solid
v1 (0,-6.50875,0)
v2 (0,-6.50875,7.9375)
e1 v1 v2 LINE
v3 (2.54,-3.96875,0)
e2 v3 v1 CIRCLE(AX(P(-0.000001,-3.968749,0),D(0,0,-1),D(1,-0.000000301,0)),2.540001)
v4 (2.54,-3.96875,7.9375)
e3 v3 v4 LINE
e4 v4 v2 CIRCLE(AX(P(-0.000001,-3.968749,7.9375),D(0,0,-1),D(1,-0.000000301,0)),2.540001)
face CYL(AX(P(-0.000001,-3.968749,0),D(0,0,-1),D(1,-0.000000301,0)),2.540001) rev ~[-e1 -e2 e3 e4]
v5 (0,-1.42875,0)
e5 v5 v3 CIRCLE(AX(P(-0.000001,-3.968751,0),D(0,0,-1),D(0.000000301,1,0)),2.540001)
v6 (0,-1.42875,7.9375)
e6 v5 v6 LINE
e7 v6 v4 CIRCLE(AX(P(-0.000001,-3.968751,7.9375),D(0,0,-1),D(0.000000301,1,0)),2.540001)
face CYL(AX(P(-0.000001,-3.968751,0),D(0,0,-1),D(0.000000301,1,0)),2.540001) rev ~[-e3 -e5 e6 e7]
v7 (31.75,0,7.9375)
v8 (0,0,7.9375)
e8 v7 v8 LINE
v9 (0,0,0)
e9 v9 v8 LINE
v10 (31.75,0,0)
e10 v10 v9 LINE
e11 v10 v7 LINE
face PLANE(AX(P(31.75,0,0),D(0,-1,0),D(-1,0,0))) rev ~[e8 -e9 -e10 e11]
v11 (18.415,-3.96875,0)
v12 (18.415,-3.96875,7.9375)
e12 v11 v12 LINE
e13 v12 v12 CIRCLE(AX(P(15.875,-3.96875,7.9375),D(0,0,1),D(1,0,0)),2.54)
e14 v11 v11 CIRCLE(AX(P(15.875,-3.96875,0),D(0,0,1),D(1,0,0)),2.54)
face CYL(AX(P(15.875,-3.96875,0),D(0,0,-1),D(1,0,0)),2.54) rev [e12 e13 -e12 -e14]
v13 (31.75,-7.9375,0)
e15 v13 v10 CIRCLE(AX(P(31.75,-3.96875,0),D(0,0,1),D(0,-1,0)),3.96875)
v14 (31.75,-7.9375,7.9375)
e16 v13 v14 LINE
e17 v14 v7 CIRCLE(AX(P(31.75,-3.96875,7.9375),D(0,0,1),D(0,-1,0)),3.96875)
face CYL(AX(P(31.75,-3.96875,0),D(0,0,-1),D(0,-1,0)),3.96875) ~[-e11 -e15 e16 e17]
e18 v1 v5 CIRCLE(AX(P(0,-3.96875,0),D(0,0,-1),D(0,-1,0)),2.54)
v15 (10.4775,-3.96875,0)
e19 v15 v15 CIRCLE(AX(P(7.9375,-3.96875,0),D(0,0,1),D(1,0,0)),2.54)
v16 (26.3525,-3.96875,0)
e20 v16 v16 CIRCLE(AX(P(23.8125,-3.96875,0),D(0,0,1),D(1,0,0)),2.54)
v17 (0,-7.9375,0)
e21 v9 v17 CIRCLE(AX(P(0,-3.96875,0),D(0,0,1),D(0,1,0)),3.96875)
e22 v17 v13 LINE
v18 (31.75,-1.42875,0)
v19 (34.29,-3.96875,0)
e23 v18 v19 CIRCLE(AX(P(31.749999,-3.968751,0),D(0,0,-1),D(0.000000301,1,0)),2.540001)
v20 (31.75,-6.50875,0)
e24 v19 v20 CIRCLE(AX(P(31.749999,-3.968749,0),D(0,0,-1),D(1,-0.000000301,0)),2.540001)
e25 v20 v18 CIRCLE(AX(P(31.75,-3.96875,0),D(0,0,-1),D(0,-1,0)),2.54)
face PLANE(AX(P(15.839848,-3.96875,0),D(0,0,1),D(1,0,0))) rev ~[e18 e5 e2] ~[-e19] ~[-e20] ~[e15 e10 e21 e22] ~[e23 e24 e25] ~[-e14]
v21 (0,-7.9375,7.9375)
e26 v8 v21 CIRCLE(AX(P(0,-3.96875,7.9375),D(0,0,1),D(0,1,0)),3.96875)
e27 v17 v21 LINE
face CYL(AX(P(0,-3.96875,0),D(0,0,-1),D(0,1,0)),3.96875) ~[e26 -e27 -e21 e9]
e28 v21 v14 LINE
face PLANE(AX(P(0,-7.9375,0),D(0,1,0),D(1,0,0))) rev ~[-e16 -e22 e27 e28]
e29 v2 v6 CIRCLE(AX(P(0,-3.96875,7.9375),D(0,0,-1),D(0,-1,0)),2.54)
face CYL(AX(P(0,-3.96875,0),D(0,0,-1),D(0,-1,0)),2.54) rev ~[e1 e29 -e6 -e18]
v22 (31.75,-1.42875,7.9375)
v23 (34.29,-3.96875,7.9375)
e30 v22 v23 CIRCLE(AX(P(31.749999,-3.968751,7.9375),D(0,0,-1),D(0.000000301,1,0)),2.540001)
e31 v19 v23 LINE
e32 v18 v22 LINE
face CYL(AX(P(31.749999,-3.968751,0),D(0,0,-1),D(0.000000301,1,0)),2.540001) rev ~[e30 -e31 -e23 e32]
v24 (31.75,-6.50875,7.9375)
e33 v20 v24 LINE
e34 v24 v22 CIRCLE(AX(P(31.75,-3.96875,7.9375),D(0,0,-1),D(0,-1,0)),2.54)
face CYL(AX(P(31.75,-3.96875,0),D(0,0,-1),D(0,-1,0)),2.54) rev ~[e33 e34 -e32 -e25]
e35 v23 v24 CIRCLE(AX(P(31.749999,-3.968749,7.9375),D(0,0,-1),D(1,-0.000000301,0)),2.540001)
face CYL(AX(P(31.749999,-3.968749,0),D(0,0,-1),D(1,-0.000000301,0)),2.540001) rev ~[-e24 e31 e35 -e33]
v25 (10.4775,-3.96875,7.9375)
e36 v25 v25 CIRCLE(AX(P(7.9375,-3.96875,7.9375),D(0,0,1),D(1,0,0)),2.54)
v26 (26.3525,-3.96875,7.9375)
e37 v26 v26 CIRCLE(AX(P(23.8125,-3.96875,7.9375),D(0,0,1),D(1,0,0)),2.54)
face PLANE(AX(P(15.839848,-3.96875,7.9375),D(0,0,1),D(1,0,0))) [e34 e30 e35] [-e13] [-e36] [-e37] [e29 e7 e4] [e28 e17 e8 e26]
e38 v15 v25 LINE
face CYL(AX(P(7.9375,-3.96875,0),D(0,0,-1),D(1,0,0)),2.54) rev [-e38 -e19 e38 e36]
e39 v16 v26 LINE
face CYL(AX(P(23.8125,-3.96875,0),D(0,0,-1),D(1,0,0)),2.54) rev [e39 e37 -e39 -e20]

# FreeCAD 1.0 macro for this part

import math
import FreeCAD as App
import Part
import Sketcher
from FreeCAD import Vector
Q = App.Units.Quantity

doc = App.newDocument("Part")
body = doc.addObject("PartDesign::Body", "Body")

sketch1 = body.newObject("Sketcher::SketchObject", "Sketch")
sketch1.AttachmentSupport = (doc.getObject("XY_Plane"), [""])
sketch1.MapMode = "FlatFace"
sketch1.addGeometry([
    Part.LineSegment(Vector(31.8, 0, 0), Vector(0, 0, 0)),
    Part.ArcOfCircle(Part.Circle(Vector(0, -4, 0), Vector(0, 0, 1), 4), math.radians(90), math.radians(270)),
    Part.LineSegment(Vector(0, -7.9, 0), Vector(31.8, -7.9, 0)),
    Part.ArcOfCircle(Part.Circle(Vector(31.8, -4, 0), Vector(0, 0, 1), 4), math.radians(-90), math.radians(90)),
    Part.ArcOfCircle(Part.Circle(Vector(31.8, -4, 0), Vector(0, 0, 1), 2.5), math.radians(90), math.radians(270)),
    Part.ArcOfCircle(Part.Circle(Vector(31.7, -4, 0), Vector(0, 0, 1), 2.5), math.radians(0), math.radians(90)),
    Part.ArcOfCircle(Part.Circle(Vector(31.7, -4, 0), Vector(0, 0, 1), 2.5), math.radians(-90), math.radians(0)),
    Part.ArcOfCircle(Part.Circle(Vector(0, -4, 0), Vector(0, 0, 1), 2.5), math.radians(0), math.radians(90)),
    Part.ArcOfCircle(Part.Circle(Vector(0, -4, 0), Vector(0, 0, 1), 2.5), math.radians(-90), math.radians(0)),
    Part.ArcOfCircle(Part.Circle(Vector(0, -4, 0), Vector(0, 0, 1), 2.5), math.radians(90), math.radians(270)),
    Part.Circle(Vector(7.9, -4, 0), Vector(0, 0, 1), 2.5),
    Part.Circle(Vector(15.9, -4, 0), Vector(0, 0, 1), 2.5),
    Part.Circle(Vector(23.8, -4, 0), Vector(0, 0, 1), 2.5),
], False)
sketch1.addConstraint([
    Sketcher.Constraint("Tangent", 0, 2, 1, 1),
    Sketcher.Constraint("Tangent", 1, 2, 2, 1),
    Sketcher.Constraint("Tangent", 2, 2, 3, 1),
    Sketcher.Constraint("Tangent", 3, 2, 0, 1),
    Sketcher.Constraint("Tangent", 4, 1, 5, 2),
    Sketcher.Constraint("Tangent", 5, 1, 6, 2),
    Sketcher.Constraint("Tangent", 6, 1, 4, 2),
    Sketcher.Constraint("Tangent", 7, 1, 8, 2),
    Sketcher.Constraint("Tangent", 8, 1, 9, 2),
    Sketcher.Constraint("Tangent", 9, 1, 7, 2),
    Sketcher.Constraint("Horizontal", 0),
    Sketcher.Constraint("Horizontal", 2),
    Sketcher.Constraint("Coincident", 0, 2, -1, 1),
    Sketcher.Constraint("Coincident", 4, 3, 3, 3),
    Sketcher.Constraint("Coincident", 7, 3, 1, 3),
    Sketcher.Constraint("Equal", 6, 7),
    Sketcher.Constraint("Equal", 9, 10),
    Sketcher.Constraint("Equal", 10, 11),
    Sketcher.Constraint("Equal", 11, 12),
    Sketcher.Constraint("PointOnObject", 8, 1, -2),
    Sketcher.Constraint("PointOnObject", 9, 1, -2),
    Sketcher.Constraint("Horizontal", 9, 3, 10, 3),
    Sketcher.Constraint("Horizontal", 10, 3, 11, 3),
    Sketcher.Constraint("Horizontal", 11, 3, 12, 3),
    Sketcher.Constraint("Horizontal", 12, 3, 5, 1),
    Sketcher.Constraint("Horizontal", 5, 1, 7, 1),
    Sketcher.Constraint("Vertical", 3, 2, 4, 1),
    Sketcher.Constraint("Vertical", 4, 1, 6, 1),
    Sketcher.Constraint("Diameter", 10, Q("0.2 in")),
    Sketcher.Constraint("Radius", 1, Q("0.15625 in")),
    Sketcher.Constraint("DistanceX", 0, 2, 0, 1, Q("1.25 in")),
    Sketcher.Constraint("DistanceX", -1, 1, 10, 3, Q("0.3125 in")),
    Sketcher.Constraint("DistanceX", -1, 1, 11, 3, Q("0.625 in")),
    Sketcher.Constraint("DistanceX", -1, 1, 12, 3, Q("0.9375 in")),
])
pad1 = body.newObject("PartDesign::Pad", "Pad")
pad1.Profile = sketch1
pad1.Length = Q("0.3125 in")

doc.recompute()
